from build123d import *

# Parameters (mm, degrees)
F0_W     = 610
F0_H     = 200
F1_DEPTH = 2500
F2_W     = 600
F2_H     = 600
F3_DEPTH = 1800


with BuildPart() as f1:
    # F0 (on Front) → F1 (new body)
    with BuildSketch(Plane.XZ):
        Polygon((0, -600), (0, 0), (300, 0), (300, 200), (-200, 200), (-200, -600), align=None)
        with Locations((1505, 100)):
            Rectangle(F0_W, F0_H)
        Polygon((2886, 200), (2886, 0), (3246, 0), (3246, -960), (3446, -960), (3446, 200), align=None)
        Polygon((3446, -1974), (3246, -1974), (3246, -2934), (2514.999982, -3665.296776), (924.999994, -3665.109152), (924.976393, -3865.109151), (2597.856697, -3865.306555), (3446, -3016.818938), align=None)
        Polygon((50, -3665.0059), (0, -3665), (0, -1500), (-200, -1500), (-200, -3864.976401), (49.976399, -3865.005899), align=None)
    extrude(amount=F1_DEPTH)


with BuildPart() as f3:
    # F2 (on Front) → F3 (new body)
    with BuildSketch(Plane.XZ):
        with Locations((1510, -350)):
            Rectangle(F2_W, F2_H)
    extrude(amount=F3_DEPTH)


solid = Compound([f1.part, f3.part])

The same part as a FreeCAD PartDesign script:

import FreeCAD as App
import Part
import Sketcher

V = App.Vector

doc = App.newDocument("Part")
body = doc.addObject("PartDesign::Body", "Body")
body.AllowCompound = True

sketch1 = doc.addObject("Sketcher::SketchObject", "Sketch")
body.addObject(sketch1)
sketch1.AttachmentSupport = (doc.XZ_Plane, [""])
sketch1.MapMode = "FlatFace"
sketch1.addGeometry([
    Part.LineSegment(V(0, -600, 0), V(0, 0, 0)),
    Part.LineSegment(V(0, 0, 0), V(300, 0, 0)),
    Part.LineSegment(V(300, 0, 0), V(300, 200, 0)),
    Part.LineSegment(V(300, 200, 0), V(-200, 200, 0)),
    Part.LineSegment(V(-200, 200, 0), V(-200, -600, 0)),
    Part.LineSegment(V(-200, -600, 0), V(0, -600, 0)),
    Part.LineSegment(V(1200, 200, 0), V(1200, 0, 0)),
    Part.LineSegment(V(1200, 0, 0), V(1810, 0, 0)),
    Part.LineSegment(V(1810, 0, 0), V(1810, 200, 0)),
    Part.LineSegment(V(1810, 200, 0), V(1200, 200, 0)),
    Part.LineSegment(V(2886, 200, 0), V(2886, 0, 0)),
    Part.LineSegment(V(2886, 0, 0), V(3246, 0, 0)),
    Part.LineSegment(V(3246, 0, 0), V(3246, -960, 0)),
    Part.LineSegment(V(3246, -960, 0), V(3446, -960, 0)),
    Part.LineSegment(V(3446, -960, 0), V(3446, 200, 0)),
    Part.LineSegment(V(3446, 200, 0), V(2886, 200, 0)),
    Part.LineSegment(V(3446, -1974, 0), V(3246, -1974, 0)),
    Part.LineSegment(V(3246, -1974, 0), V(3246, -2934, 0)),
    Part.LineSegment(V(3246, -2934, 0), V(2515, -3665, 0)),
    Part.LineSegment(V(2515, -3665, 0), V(925, -3665, 0)),
    Part.LineSegment(V(925, -3665, 0), V(925, -3865, 0)),
    Part.LineSegment(V(925, -3865, 0), V(2598, -3865, 0)),
    Part.LineSegment(V(2598, -3865, 0), V(3446, -3017, 0)),
    Part.LineSegment(V(3446, -3017, 0), V(3446, -1974, 0)),
    Part.LineSegment(V(50, -3665, 0), V(0, -3665, 0)),
    Part.LineSegment(V(0, -3665, 0), V(0, -1500, 0)),
    Part.LineSegment(V(0, -1500, 0), V(-200, -1500, 0)),
    Part.LineSegment(V(-200, -1500, 0), V(-200, -3865, 0)),
    Part.LineSegment(V(-200, -3865, 0), V(50, -3865, 0)),
    Part.LineSegment(V(50, -3865, 0), V(50, -3665, 0)),
], False)
sketch1.addConstraint([
    Sketcher.Constraint("Coincident", 0, 2, 1, 1),
    Sketcher.Constraint("Coincident", 1, 2, 2, 1),
    Sketcher.Constraint("Coincident", 2, 2, 3, 1),
    Sketcher.Constraint("Coincident", 3, 2, 4, 1),
    Sketcher.Constraint("Coincident", 4, 2, 5, 1),
    Sketcher.Constraint("Coincident", 5, 2, 0, 1),
    Sketcher.Constraint("Coincident", 6, 2, 7, 1),
    Sketcher.Constraint("Coincident", 7, 2, 8, 1),
    Sketcher.Constraint("Coincident", 8, 2, 9, 1),
    Sketcher.Constraint("Coincident", 9, 2, 6, 1),
    Sketcher.Constraint("Coincident", 10, 2, 11, 1),
    Sketcher.Constraint("Coincident", 11, 2, 12, 1),
    Sketcher.Constraint("Coincident", 12, 2, 13, 1),
    Sketcher.Constraint("Coincident", 13, 2, 14, 1),
    Sketcher.Constraint("Coincident", 14, 2, 15, 1),
    Sketcher.Constraint("Coincident", 15, 2, 10, 1),
    Sketcher.Constraint("Coincident", 16, 2, 17, 1),
    Sketcher.Constraint("Coincident", 17, 2, 18, 1),
    Sketcher.Constraint("Coincident", 18, 2, 19, 1),
    Sketcher.Constraint("Coincident", 19, 2, 20, 1),
    Sketcher.Constraint("Coincident", 20, 2, 21, 1),
    Sketcher.Constraint("Coincident", 21, 2, 22, 1),
    Sketcher.Constraint("Coincident", 22, 2, 23, 1),
    Sketcher.Constraint("Coincident", 23, 2, 16, 1),
    Sketcher.Constraint("Coincident", 24, 2, 25, 1),
    Sketcher.Constraint("Coincident", 25, 2, 26, 1),
    Sketcher.Constraint("Coincident", 26, 2, 27, 1),
    Sketcher.Constraint("Coincident", 27, 2, 28, 1),
    Sketcher.Constraint("Coincident", 28, 2, 29, 1),
    Sketcher.Constraint("Coincident", 29, 2, 24, 1),
    Sketcher.Constraint("Vertical", 0),
    Sketcher.Constraint("Horizontal", 1),
    Sketcher.Constraint("Vertical", 2),
    Sketcher.Constraint("Horizontal", 3),
    Sketcher.Constraint("Vertical", 4),
    Sketcher.Constraint("Horizontal", 5),
    Sketcher.Constraint("Vertical", 6),
    Sketcher.Constraint("Horizontal", 7),
    Sketcher.Constraint("Vertical", 8),
    Sketcher.Constraint("Horizontal", 9),
    Sketcher.Constraint("Vertical", 10),
    Sketcher.Constraint("Horizontal", 11),
    Sketcher.Constraint("Vertical", 12),
    Sketcher.Constraint("Horizontal", 13),
    Sketcher.Constraint("Vertical", 14),
    Sketcher.Constraint("Horizontal", 15),
    Sketcher.Constraint("Horizontal", 16),
    Sketcher.Constraint("Vertical", 17),
    Sketcher.Constraint("Vertical", 23),
    Sketcher.Constraint("Vertical", 25),
    Sketcher.Constraint("Horizontal", 26),
    Sketcher.Constraint("Vertical", 27),
    Sketcher.Constraint("Coincident", 0, 2, -1, 1),
    Sketcher.Constraint("PointOnObject", 6, 2, -1),
    Sketcher.Constraint("PointOnObject", 10, 2, -1),
    Sketcher.Constraint("PointOnObject", 24, 2, -2),
    Sketcher.Constraint("Perpendicular", 19, 20),
    Sketcher.Constraint("Perpendicular", 20, 21),
    Sketcher.Constraint("Parallel", 18, 22),
    Sketcher.Constraint("Parallel", 21, 24),
    Sketcher.Constraint("Parallel", 24, 28),
    Sketcher.Constraint("Perpendicular", 28, 29),
    Sketcher.Constraint("Horizontal", 3, 2, 8, 2),
    Sketcher.Constraint("Horizontal", 9, 2, 14, 2),
    Sketcher.Constraint("Vertical", 12, 2, 16, 2),
    Sketcher.Constraint("Vertical", 14, 2, 22, 2),
    Sketcher.Constraint("Vertical", 4, 2, 26, 2),
    Sketcher.Constraint("Equal", 5, 13),
    Sketcher.Constraint("Equal", 26, 2),
    Sketcher.Constraint("Equal", 12, 17),
    Sketcher.Constraint("Equal", 20, 29),
    Sketcher.Constraint("DistanceX", 1, 1, 1, 2, 300.0),
    Sketcher.Constraint("DistanceX", 3, 2, 3, 1, 500.0),
    Sketcher.Constraint("DistanceX", 7, 1, 7, 2, 610.0),
    Sketcher.Constraint("DistanceX", 11, 1, 11, 2, 360.0),
    Sketcher.Constraint("DistanceY", 0, 1, 0, 2, 600.0),
    Sketcher.Constraint("DistanceY", 12, 2, 12, 1, 960.0),
    Sketcher.Constraint("DistanceY", 25, 1, 25, 2, 2165.0),
    Sketcher.Constraint("Distance", 18, 1034.0),
    Sketcher.Constraint("Distance", 19, 1589.999999),
    Sketcher.Constraint("Distance", 20, 200.0),
    Sketcher.Constraint("Distance", 24, 50.0),
    Sketcher.Constraint("DistanceX", -1, 1, 6, 2, 1200.0),
    Sketcher.Constraint("DistanceX", -1, 1, 10, 2, 2886.0),
    Sketcher.Constraint("DistanceY", 16, 2, -1, 1, 1974.0),
    Sketcher.Constraint("DistanceY", 24, 2, -1, 1, 3665.0),
    Sketcher.Constraint("DistanceY", 27, 2, 27, 1, 2364.976401),
    Sketcher.Constraint("DistanceY", 23, 1, 23, 2, 1042.818938),
    Sketcher.Constraint("DistanceX", -1, 1, 18, 2, 2514.999982),
])
pad1 = doc.addObject("PartDesign::Pad", "Pad")
body.addObject(pad1)
pad1.Profile = sketch1
pad1.Length = 2500
body2 = doc.addObject("PartDesign::Body", "Body001")

sketch2 = doc.addObject("Sketcher::SketchObject", "Sketch001")
body2.addObject(sketch2)
sketch2.AttachmentSupport = (doc.getObject("XZ_Plane001"), [""])
sketch2.MapMode = "FlatFace"
sketch2.addGeometry([
    Part.LineSegment(V(1210, -50, 0), V(1210, -650, 0)),
    Part.LineSegment(V(1210, -650, 0), V(1810, -650, 0)),
    Part.LineSegment(V(1810, -650, 0), V(1810, -50, 0)),
    Part.LineSegment(V(1810, -50, 0), V(1210, -50, 0)),
], False)
sketch2.addConstraint([
    Sketcher.Constraint("Coincident", 0, 2, 1, 1),
    Sketcher.Constraint("Coincident", 1, 2, 2, 1),
    Sketcher.Constraint("Coincident", 2, 2, 3, 1),
    Sketcher.Constraint("Coincident", 3, 2, 0, 1),
    Sketcher.Constraint("Vertical", 0),
    Sketcher.Constraint("Horizontal", 1),
    Sketcher.Constraint("Vertical", 2),
    Sketcher.Constraint("Horizontal", 3),
    Sketcher.Constraint("Equal", 3, 0),
    Sketcher.Constraint("DistanceX", 1, 1, 1, 2, 600.0),
    Sketcher.Constraint("DistanceX", -1, 1, 0, 2, 1210.0),
    Sketcher.Constraint("DistanceY", 0, 2, -1, 1, 650.0),
])
pad2 = doc.addObject("PartDesign::Pad", "Pad001")
body2.addObject(pad2)
pad2.Profile = sketch2
pad2.Length = 1800

doc.recompute()
